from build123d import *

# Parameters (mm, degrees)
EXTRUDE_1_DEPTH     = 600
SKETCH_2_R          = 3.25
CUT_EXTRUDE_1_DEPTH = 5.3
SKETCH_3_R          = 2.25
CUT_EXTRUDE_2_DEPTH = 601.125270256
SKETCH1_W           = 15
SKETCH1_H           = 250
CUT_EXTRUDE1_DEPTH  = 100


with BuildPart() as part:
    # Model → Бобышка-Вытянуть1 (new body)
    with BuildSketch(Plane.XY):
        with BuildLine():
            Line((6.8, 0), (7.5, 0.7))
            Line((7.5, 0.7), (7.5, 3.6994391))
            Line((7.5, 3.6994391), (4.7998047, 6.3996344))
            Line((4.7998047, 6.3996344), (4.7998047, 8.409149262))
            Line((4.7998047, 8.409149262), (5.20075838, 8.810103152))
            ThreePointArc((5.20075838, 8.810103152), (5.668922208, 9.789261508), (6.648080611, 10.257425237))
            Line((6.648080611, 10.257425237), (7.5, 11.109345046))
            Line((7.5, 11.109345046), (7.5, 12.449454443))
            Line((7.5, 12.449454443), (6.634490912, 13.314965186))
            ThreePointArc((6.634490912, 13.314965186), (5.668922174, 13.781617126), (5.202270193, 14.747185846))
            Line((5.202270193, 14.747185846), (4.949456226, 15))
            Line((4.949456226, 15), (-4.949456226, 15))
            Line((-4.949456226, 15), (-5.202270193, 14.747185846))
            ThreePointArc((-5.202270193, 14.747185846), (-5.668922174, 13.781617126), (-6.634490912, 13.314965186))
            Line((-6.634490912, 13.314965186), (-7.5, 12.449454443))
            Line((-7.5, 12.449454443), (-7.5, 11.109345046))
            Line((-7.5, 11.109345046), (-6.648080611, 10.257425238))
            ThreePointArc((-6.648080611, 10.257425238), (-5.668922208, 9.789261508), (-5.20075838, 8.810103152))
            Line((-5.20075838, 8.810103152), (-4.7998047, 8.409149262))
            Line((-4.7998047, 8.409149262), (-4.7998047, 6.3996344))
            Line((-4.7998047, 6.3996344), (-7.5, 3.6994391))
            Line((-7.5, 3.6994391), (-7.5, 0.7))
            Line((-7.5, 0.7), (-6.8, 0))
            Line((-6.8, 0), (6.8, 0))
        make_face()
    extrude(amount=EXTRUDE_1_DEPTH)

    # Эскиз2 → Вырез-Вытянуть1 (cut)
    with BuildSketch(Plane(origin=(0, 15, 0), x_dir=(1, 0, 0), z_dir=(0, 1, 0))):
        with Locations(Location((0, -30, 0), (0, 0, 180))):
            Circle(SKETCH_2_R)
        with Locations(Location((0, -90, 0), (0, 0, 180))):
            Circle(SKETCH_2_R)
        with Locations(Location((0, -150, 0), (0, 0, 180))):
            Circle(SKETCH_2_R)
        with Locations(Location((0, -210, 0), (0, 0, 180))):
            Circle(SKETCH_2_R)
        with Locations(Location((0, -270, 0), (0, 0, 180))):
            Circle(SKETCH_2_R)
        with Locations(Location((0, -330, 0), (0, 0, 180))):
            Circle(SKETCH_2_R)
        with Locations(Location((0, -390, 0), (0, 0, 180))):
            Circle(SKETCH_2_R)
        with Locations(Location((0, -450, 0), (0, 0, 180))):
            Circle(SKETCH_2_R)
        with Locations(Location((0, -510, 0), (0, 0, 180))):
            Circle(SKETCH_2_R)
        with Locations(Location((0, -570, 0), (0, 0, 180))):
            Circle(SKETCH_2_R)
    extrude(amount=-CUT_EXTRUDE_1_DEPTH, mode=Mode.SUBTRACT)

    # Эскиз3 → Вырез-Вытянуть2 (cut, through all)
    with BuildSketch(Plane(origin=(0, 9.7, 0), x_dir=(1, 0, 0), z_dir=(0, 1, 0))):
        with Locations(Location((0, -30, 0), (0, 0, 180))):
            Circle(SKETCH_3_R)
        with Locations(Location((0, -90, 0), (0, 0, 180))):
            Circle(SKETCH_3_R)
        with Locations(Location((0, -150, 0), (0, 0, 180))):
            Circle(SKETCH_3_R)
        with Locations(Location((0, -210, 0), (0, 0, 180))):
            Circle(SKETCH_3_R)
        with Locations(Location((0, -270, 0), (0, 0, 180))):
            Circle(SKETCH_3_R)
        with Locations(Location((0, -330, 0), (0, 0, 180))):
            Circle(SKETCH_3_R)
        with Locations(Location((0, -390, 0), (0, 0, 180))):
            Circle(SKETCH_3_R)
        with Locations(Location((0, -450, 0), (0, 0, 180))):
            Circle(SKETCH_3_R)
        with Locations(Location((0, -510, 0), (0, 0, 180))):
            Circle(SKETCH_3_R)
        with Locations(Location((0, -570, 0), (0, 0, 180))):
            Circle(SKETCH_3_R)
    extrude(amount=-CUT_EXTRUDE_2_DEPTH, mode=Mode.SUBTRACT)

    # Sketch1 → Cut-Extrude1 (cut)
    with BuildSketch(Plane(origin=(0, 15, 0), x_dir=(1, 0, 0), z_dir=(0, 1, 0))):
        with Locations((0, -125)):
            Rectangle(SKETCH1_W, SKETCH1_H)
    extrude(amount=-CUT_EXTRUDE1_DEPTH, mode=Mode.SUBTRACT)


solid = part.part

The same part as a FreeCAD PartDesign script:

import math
import FreeCAD as App
import Part
import Sketcher
from FreeCAD import Vector
Q = App.Units.Quantity

doc = App.newDocument("Part")
body = doc.addObject("PartDesign::Body", "Body")

# Sketch on XY plane
sketch1 = doc.addObject("Sketcher::SketchObject", "Sketch")
body.addObject(sketch1)
sketch1.AttachmentSupport = (doc.XY_Plane, [""])
sketch1.MapMode = "FlatFace"
sketch1.addGeometry([
    Part.LineSegment(Vector(6.8, 0, 0), Vector(7.5, 0.7, 0)),  # 0
    Part.LineSegment(Vector(7.5, 0.7, 0), Vector(7.5, 3.7, 0)),  # 1
    Part.LineSegment(Vector(7.5, 3.7, 0), Vector(4.8, 6.4, 0)),  # 2
    Part.LineSegment(Vector(4.8, 6.4, 0), Vector(4.8, 8.41, 0)),  # 3
    Part.LineSegment(Vector(4.8, 8.41, 0), Vector(5.2, 8.81, 0)),  # 4
    Part.ArcOfCircle(Part.Circle(Vector(6.82, 8.64, 0), Vector(0, 0, 1), 1.63), math.radians(96), math.radians(174)),  # 5
    Part.LineSegment(Vector(6.65, 10.26, 0), Vector(7.5, 11.11, 0)),  # 6
    Part.LineSegment(Vector(7.5, 11.11, 0), Vector(7.5, 12.45, 0)),  # 7
    Part.LineSegment(Vector(7.5, 12.45, 0), Vector(6.63, 13.31, 0)),  # 8
    Part.ArcOfCircle(Part.Circle(Vector(6.82, 14.93, 0), Vector(0, 0, 1), 1.63), math.radians(-173), math.radians(-97)),  # 9
    Part.LineSegment(Vector(5.2, 14.75, 0), Vector(4.95, 15, 0)),  # 10
    Part.LineSegment(Vector(4.95, 15, 0), Vector(-4.95, 15, 0)),  # 11
    Part.LineSegment(Vector(-4.95, 15, 0), Vector(-5.2, 14.75, 0)),  # 12
    Part.ArcOfCircle(Part.Circle(Vector(-6.82, 14.93, 0), Vector(0, 0, 1), 1.63), math.radians(-83), math.radians(-7)),  # 13
    Part.LineSegment(Vector(-6.63, 13.31, 0), Vector(-7.5, 12.45, 0)),  # 14
    Part.LineSegment(Vector(-7.5, 12.45, 0), Vector(-7.5, 11.11, 0)),  # 15
    Part.LineSegment(Vector(-7.5, 11.11, 0), Vector(-6.65, 10.26, 0)),  # 16
    Part.ArcOfCircle(Part.Circle(Vector(-6.82, 8.64, 0), Vector(0, 0, 1), 1.63), math.radians(6), math.radians(84)),  # 17
    Part.LineSegment(Vector(-5.2, 8.81, 0), Vector(-4.8, 8.41, 0)),  # 18
    Part.LineSegment(Vector(-4.8, 8.41, 0), Vector(-4.8, 6.4, 0)),  # 19
    Part.LineSegment(Vector(-4.8, 6.4, 0), Vector(-7.5, 3.7, 0)),  # 20
    Part.LineSegment(Vector(-7.5, 3.7, 0), Vector(-7.5, 0.7, 0)),  # 21
    Part.LineSegment(Vector(-7.5, 0.7, 0), Vector(-6.8, 0, 0)),  # 22
    Part.LineSegment(Vector(-6.8, 0, 0), Vector(6.8, 0, 0)),  # 23
], False)
sketch1.addConstraint([
    Sketcher.Constraint("Coincident", 0, 2, 1, 1),
    Sketcher.Constraint("Coincident", 1, 2, 2, 1),
    Sketcher.Constraint("Coincident", 2, 2, 3, 1),
    Sketcher.Constraint("Coincident", 3, 2, 4, 1),
    Sketcher.Constraint("Coincident", 4, 2, 5, 2),
    Sketcher.Constraint("Coincident", 5, 1, 6, 1),
    Sketcher.Constraint("Coincident", 6, 2, 7, 1),
    Sketcher.Constraint("Coincident", 7, 2, 8, 1),
    Sketcher.Constraint("Coincident", 8, 2, 9, 2),
    Sketcher.Constraint("Coincident", 9, 1, 10, 1),
    Sketcher.Constraint("Coincident", 10, 2, 11, 1),
    Sketcher.Constraint("Coincident", 11, 2, 12, 1),
    Sketcher.Constraint("Coincident", 12, 2, 13, 2),
    Sketcher.Constraint("Coincident", 13, 1, 14, 1),
    Sketcher.Constraint("Coincident", 14, 2, 15, 1),
    Sketcher.Constraint("Coincident", 15, 2, 16, 1),
    Sketcher.Constraint("Coincident", 16, 2, 17, 2),
    Sketcher.Constraint("Coincident", 17, 1, 18, 1),
    Sketcher.Constraint("Coincident", 18, 2, 19, 1),
    Sketcher.Constraint("Coincident", 19, 2, 20, 1),
    Sketcher.Constraint("Coincident", 20, 2, 21, 1),
    Sketcher.Constraint("Coincident", 21, 2, 22, 1),
    Sketcher.Constraint("Coincident", 22, 2, 23, 1),
    Sketcher.Constraint("Coincident", 23, 2, 0, 1),
    Sketcher.Constraint("Vertical", 1),
    Sketcher.Constraint("Vertical", 3),
    Sketcher.Constraint("Vertical", 7),
    Sketcher.Constraint("Horizontal", 11),
    Sketcher.Constraint("Vertical", 15),
    Sketcher.Constraint("Vertical", 19),
    Sketcher.Constraint("Vertical", 21),
    Sketcher.Constraint("Horizontal", 23),
    Sketcher.Constraint("Equal", 5, 9),
    Sketcher.Constraint("Equal", 9, 13),
    Sketcher.Constraint("Equal", 13, 17),
    Sketcher.Constraint("Symmetric", 22, 2, 23, 2, -1, 1),
    Sketcher.Constraint("Symmetric", 9, 3, 13, 3, -2),
    Sketcher.Constraint("Symmetric", 5, 3, 17, 3, -2),
    Sketcher.Constraint("Symmetric", 7, 2, 14, 2, -2),
    Sketcher.Constraint("Symmetric", 3, 2, 18, 2, -2),
    Sketcher.Constraint("Symmetric", 1, 2, 20, 2, -2),
    Sketcher.Constraint("Perpendicular", 0, 2),
    Sketcher.Constraint("Perpendicular", 2, 4),
    Sketcher.Constraint("Parallel", 4, 6),
    Sketcher.Constraint("Perpendicular", 6, 8),
    Sketcher.Constraint("Parallel", 8, 10),
    Sketcher.Constraint("Perpendicular", 10, 12),
    Sketcher.Constraint("Parallel", 12, 14),
    Sketcher.Constraint("Perpendicular", 14, 16),
    Sketcher.Constraint("Parallel", 16, 18),
    Sketcher.Constraint("Perpendicular", 18, 20),
    Sketcher.Constraint("Perpendicular", 20, 22),
    Sketcher.Constraint("Horizontal", 9, 1, 12, 2),
    Sketcher.Constraint("Horizontal", 8, 2, 13, 1),
    Sketcher.Constraint("Horizontal", 6, 2, 15, 2),
    Sketcher.Constraint("Vertical", 5, 3, 9, 3),
    Sketcher.Constraint("Vertical", 1, 2, 6, 2),
    Sketcher.Constraint("Radius", 5, Q("1.63 mm")),
    Sketcher.Constraint("DistanceX", 23, 1, 23, 2, Q("13.6 mm")),
    Sketcher.Constraint("DistanceY", -1, 1, 10, 2, Q("15 mm")),
    Sketcher.Constraint("DistanceX", -1, 1, 0, 2, Q("7.5 mm")),
    Sketcher.Constraint("DistanceY", 1, 1, 1, 2, Q("2.999439 mm")),
    Sketcher.Constraint("DistanceY", 7, 1, 7, 2, Q("1.340109 mm")),
    Sketcher.Constraint("DistanceY", -1, 1, 9, 3, Q("14.934201 mm")),
    Sketcher.Constraint("DistanceX", 2, 2, 5, 3, Q("2.021702 mm")),
    Sketcher.Constraint("DistanceY", 4, 2, 9, 3, Q("6.124098 mm")),
    Sketcher.Constraint("DistanceX", 11, 2, 11, 1, Q("9.898912 mm")),
    Sketcher.Constraint("DistanceY", 3, 1, 3, 2, Q("2.009515 mm")),
    Sketcher.Constraint("DistanceY", -1, 1, 3, 2, Q("8.409149 mm")),
    Sketcher.Constraint("DistanceX", -1, 1, 5, 1, Q("6.648081 mm")),
])
pad1 = doc.addObject("PartDesign::Pad", "Pad")
body.addObject(pad1)
pad1.Profile = sketch1
pad1.Length = 600

# Sketch on XZ plane
sketch2 = doc.addObject("Sketcher::SketchObject", "Sketch001")
body.addObject(sketch2)
sketch2.AttachmentSupport = (doc.XZ_Plane, [""])
sketch2.MapMode = "FlatFace"
sketch2.AttachmentOffset = App.Placement(Vector(0, 0, -15), App.Rotation())
sketch2.addGeometry([
    Part.Circle(Vector(0, 30, 0), Vector(0, 0, 1), 3.2),  # 0
    Part.Circle(Vector(0, 90, 0), Vector(0, 0, 1), 3.2),  # 1
    Part.Circle(Vector(0, 150, 0), Vector(0, 0, 1), 3.2),  # 2
    Part.Circle(Vector(0, 210, 0), Vector(0, 0, 1), 3.2),  # 3
    Part.Circle(Vector(0, 270, 0), Vector(0, 0, 1), 3.2),  # 4
    Part.Circle(Vector(0, 330, 0), Vector(0, 0, 1), 3.2),  # 5
    Part.Circle(Vector(0, 390, 0), Vector(0, 0, 1), 3.2),  # 6
    Part.Circle(Vector(0, 450, 0), Vector(0, 0, 1), 3.2),  # 7
    Part.Circle(Vector(0, 510, 0), Vector(0, 0, 1), 3.2),  # 8
    Part.Circle(Vector(0, 570, 0), Vector(0, 0, 1), 3.2),  # 9
], False)
sketch2.addConstraint([
    Sketcher.Constraint("Equal", 0, 1),
    Sketcher.Constraint("Equal", 1, 2),
    Sketcher.Constraint("Equal", 2, 3),
    Sketcher.Constraint("Equal", 3, 4),
    Sketcher.Constraint("Equal", 4, 5),
    Sketcher.Constraint("Equal", 5, 6),
    Sketcher.Constraint("Equal", 6, 7),
    Sketcher.Constraint("Equal", 7, 8),
    Sketcher.Constraint("Equal", 8, 9),
    Sketcher.Constraint("PointOnObject", 0, 3, -2),
    Sketcher.Constraint("PointOnObject", 1, 3, -2),
    Sketcher.Constraint("PointOnObject", 2, 3, -2),
    Sketcher.Constraint("PointOnObject", 3, 3, -2),
    Sketcher.Constraint("PointOnObject", 4, 3, -2),
    Sketcher.Constraint("PointOnObject", 5, 3, -2),
    Sketcher.Constraint("PointOnObject", 6, 3, -2),
    Sketcher.Constraint("PointOnObject", 7, 3, -2),
    Sketcher.Constraint("PointOnObject", 8, 3, -2),
    Sketcher.Constraint("PointOnObject", 9, 3, -2),
    Sketcher.Constraint("Diameter", 0, Q("6.5 mm")),
    Sketcher.Constraint("DistanceY", -1, 1, 0, 3, Q("30 mm")),
    Sketcher.Constraint("DistanceY", -1, 1, 1, 3, Q("90 mm")),
    Sketcher.Constraint("DistanceY", -1, 1, 2, 3, Q("150 mm")),
    Sketcher.Constraint("DistanceY", -1, 1, 3, 3, Q("210 mm")),
    Sketcher.Constraint("DistanceY", -1, 1, 4, 3, Q("270 mm")),
    Sketcher.Constraint("DistanceY", -1, 1, 5, 3, Q("330 mm")),
    Sketcher.Constraint("DistanceY", -1, 1, 6, 3, Q("390 mm")),
    Sketcher.Constraint("DistanceY", -1, 1, 7, 3, Q("450 mm")),
    Sketcher.Constraint("DistanceY", -1, 1, 8, 3, Q("510 mm")),
    Sketcher.Constraint("DistanceY", -1, 1, 9, 3, Q("570 mm")),
])
pocket1 = doc.addObject("PartDesign::Pocket", "Pocket")
body.addObject(pocket1)
pocket1.Profile = sketch2
pocket1.Length = 5.3
pocket1.Reversed = True

# Sketch on XZ plane
sketch3 = doc.addObject("Sketcher::SketchObject", "Sketch002")
body.addObject(sketch3)
sketch3.AttachmentSupport = (doc.XZ_Plane, [""])
sketch3.MapMode = "FlatFace"
sketch3.AttachmentOffset = App.Placement(Vector(0, 0, -9.7), App.Rotation())
sketch3.addGeometry([
    Part.Circle(Vector(0, 30, 0), Vector(0, 0, 1), 2.2),  # 0
    Part.Circle(Vector(0, 90, 0), Vector(0, 0, 1), 2.2),  # 1
    Part.Circle(Vector(0, 150, 0), Vector(0, 0, 1), 2.2),  # 2
    Part.Circle(Vector(0, 210, 0), Vector(0, 0, 1), 2.2),  # 3
    Part.Circle(Vector(0, 270, 0), Vector(0, 0, 1), 2.2),  # 4
    Part.Circle(Vector(0, 330, 0), Vector(0, 0, 1), 2.2),  # 5
    Part.Circle(Vector(0, 390, 0), Vector(0, 0, 1), 2.2),  # 6
    Part.Circle(Vector(0, 450, 0), Vector(0, 0, 1), 2.2),  # 7
    Part.Circle(Vector(0, 510, 0), Vector(0, 0, 1), 2.2),  # 8
    Part.Circle(Vector(0, 570, 0), Vector(0, 0, 1), 2.2),  # 9
], False)
sketch3.addConstraint([
    Sketcher.Constraint("Equal", 0, 1),
    Sketcher.Constraint("Equal", 1, 2),
    Sketcher.Constraint("Equal", 2, 3),
    Sketcher.Constraint("Equal", 3, 4),
    Sketcher.Constraint("Equal", 4, 5),
    Sketcher.Constraint("Equal", 5, 6),
    Sketcher.Constraint("Equal", 6, 7),
    Sketcher.Constraint("Equal", 7, 8),
    Sketcher.Constraint("Equal", 8, 9),
    Sketcher.Constraint("PointOnObject", 0, 3, -2),
    Sketcher.Constraint("PointOnObject", 1, 3, -2),
    Sketcher.Constraint("PointOnObject", 2, 3, -2),
    Sketcher.Constraint("PointOnObject", 3, 3, -2),
    Sketcher.Constraint("PointOnObject", 4, 3, -2),
    Sketcher.Constraint("PointOnObject", 5, 3, -2),
    Sketcher.Constraint("PointOnObject", 6, 3, -2),
    Sketcher.Constraint("PointOnObject", 7, 3, -2),
    Sketcher.Constraint("PointOnObject", 8, 3, -2),
    Sketcher.Constraint("PointOnObject", 9, 3, -2),
    Sketcher.Constraint("Diameter", 0, Q("4.5 mm")),
    Sketcher.Constraint("DistanceY", -1, 1, 0, 3, Q("30 mm")),
    Sketcher.Constraint("DistanceY", -1, 1, 1, 3, Q("90 mm")),
    Sketcher.Constraint("DistanceY", -1, 1, 2, 3, Q("150 mm")),
    Sketcher.Constraint("DistanceY", -1, 1, 3, 3, Q("210 mm")),
    Sketcher.Constraint("DistanceY", -1, 1, 4, 3, Q("270 mm")),
    Sketcher.Constraint("DistanceY", -1, 1, 5, 3, Q("330 mm")),
    Sketcher.Constraint("DistanceY", -1, 1, 6, 3, Q("390 mm")),
    Sketcher.Constraint("DistanceY", -1, 1, 7, 3, Q("450 mm")),
    Sketcher.Constraint("DistanceY", -1, 1, 8, 3, Q("510 mm")),
    Sketcher.Constraint("DistanceY", -1, 1, 9, 3, Q("570 mm")),
])
pocket2 = doc.addObject("PartDesign::Pocket", "Pocket001")
body.addObject(pocket2)
pocket2.Profile = sketch3
pocket2.Type = "ThroughAll"
pocket2.Reversed = True

# Sketch on XZ plane
sketch4 = doc.addObject("Sketcher::SketchObject", "Sketch003")
body.addObject(sketch4)
sketch4.AttachmentSupport = (doc.XZ_Plane, [""])
sketch4.MapMode = "FlatFace"
sketch4.AttachmentOffset = App.Placement(Vector(0, 0, -15), App.Rotation())
sketch4.addGeometry([
    Part.LineSegment(Vector(-8, 0, 0), Vector(-8, 250, 0)),
    Part.LineSegment(Vector(-8, 250, 0), Vector(8, 250, 0)),
    Part.LineSegment(Vector(8, 250, 0), Vector(8, 0, 0)),
    Part.LineSegment(Vector(8, 0, 0), Vector(-8, 0, 0)),
], False)
sketch4.addConstraint([
    Sketcher.Constraint("Coincident", 0, 2, 1, 1),
    Sketcher.Constraint("Coincident", 1, 2, 2, 1),
    Sketcher.Constraint("Coincident", 2, 2, 3, 1),
    Sketcher.Constraint("Coincident", 3, 2, 0, 1),
    Sketcher.Constraint("Vertical", 0),
    Sketcher.Constraint("Horizontal", 1),
    Sketcher.Constraint("Vertical", 2),
    Sketcher.Constraint("Horizontal", 3),
    Sketcher.Constraint("Symmetric", 2, 2, 3, 2, -1, 1),
    Sketcher.Constraint("DistanceX", 1, 1, 1, 2, Q("15 mm")),
    Sketcher.Constraint("DistanceY", 0, 1, 0, 2, Q("250 mm")),
])
pocket3 = doc.addObject("PartDesign::Pocket", "Pocket002")
body.addObject(pocket3)
pocket3.Profile = sketch4
pocket3.Length = 100
pocket3.Reversed = True

doc.recompute()
